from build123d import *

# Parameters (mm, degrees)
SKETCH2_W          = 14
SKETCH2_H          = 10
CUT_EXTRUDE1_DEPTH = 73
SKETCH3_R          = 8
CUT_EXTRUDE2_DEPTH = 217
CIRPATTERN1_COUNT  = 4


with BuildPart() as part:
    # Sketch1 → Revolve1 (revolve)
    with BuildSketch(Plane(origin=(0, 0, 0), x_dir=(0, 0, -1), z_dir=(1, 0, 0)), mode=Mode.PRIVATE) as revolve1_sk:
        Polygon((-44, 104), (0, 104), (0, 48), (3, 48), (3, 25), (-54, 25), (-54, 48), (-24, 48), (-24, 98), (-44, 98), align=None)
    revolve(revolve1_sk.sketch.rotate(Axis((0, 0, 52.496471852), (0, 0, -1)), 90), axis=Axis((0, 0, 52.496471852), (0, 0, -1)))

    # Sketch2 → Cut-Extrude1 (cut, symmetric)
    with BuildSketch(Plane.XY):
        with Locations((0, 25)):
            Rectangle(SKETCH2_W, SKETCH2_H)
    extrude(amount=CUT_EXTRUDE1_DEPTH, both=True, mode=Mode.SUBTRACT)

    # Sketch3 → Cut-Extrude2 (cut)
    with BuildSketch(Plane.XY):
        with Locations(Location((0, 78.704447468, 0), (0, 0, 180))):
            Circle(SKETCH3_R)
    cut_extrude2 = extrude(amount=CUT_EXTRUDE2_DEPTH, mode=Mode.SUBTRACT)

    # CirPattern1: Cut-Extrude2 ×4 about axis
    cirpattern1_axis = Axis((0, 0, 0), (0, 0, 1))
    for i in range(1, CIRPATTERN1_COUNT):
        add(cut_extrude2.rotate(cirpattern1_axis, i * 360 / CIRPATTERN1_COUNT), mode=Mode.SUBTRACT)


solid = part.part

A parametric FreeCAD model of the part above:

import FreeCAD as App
import Part
import Sketcher
from FreeCAD import Vector
Q = App.Units.Quantity


def add_polygon(sketch, points):
    """Adds a closed chain of lines whose ends are joined by coincident constraints."""
    first, n = sketch.GeometryCount, len(points)
    for a, b in zip(points, points[1:] + points[:1]):
        sketch.addGeometry(Part.LineSegment(App.Vector(*a, 0), App.Vector(*b, 0)), False)
    for i in range(n):
        sketch.addConstraint(Sketcher.Constraint("Coincident", first + i, 2, first + (i + 1) % n, 1))

doc = App.newDocument("Part")
body = doc.addObject("PartDesign::Body", "Body")

# Sketch on YZ plane
sketch1 = doc.addObject("Sketcher::SketchObject", "Sketch")
body.addObject(sketch1)
sketch1.AttachmentSupport = (doc.YZ_Plane, [""])
sketch1.MapMode = "FlatFace"
add_polygon(sketch1, [(104, 0), (104, 44), (98, 44), (98, 24), (48, 24), (48, 54), (25, 54), (25, -3), (48, -3), (48, 0)])  # lines 0-9
sketch1.addConstraint([
    Sketcher.Constraint("Vertical", 0),
    Sketcher.Constraint("Horizontal", 1),
    Sketcher.Constraint("Vertical", 2),
    Sketcher.Constraint("Horizontal", 3),
    Sketcher.Constraint("Vertical", 4),
    Sketcher.Constraint("Horizontal", 5),
    Sketcher.Constraint("Vertical", 6),
    Sketcher.Constraint("Horizontal", 7),
    Sketcher.Constraint("Vertical", 8),
    Sketcher.Constraint("Horizontal", 9),
    Sketcher.Constraint("PointOnObject", 8, 2, -1),
    Sketcher.Constraint("Vertical", 4, 2, 7, 2),
    Sketcher.Constraint("DistanceX", 1, 2, 1, 1, Q("6 mm")),
    Sketcher.Constraint("DistanceX", 3, 2, 3, 1, Q("50 mm")),
    Sketcher.Constraint("DistanceX", 5, 2, 5, 1, Q("23 mm")),
    Sketcher.Constraint("DistanceY", 0, 1, 0, 2, Q("44 mm")),
    Sketcher.Constraint("DistanceY", 2, 2, 2, 1, Q("20 mm")),
    Sketcher.Constraint("DistanceY", 4, 1, 4, 2, Q("30 mm")),
    Sketcher.Constraint("DistanceY", 6, 2, 6, 1, Q("57 mm")),
    Sketcher.Constraint("DistanceX", -1, 1, 0, 2, Q("104 mm")),
])
revolution = doc.addObject("PartDesign::Revolution", "Revolution")
body.addObject(revolution)
revolution.Profile = sketch1
revolution.ReferenceAxis = (sketch1, ["V_Axis"])
revolution.Angle = 360

# Sketch on XY plane
sketch2 = doc.addObject("Sketcher::SketchObject", "Sketch001")
body.addObject(sketch2)
sketch2.AttachmentSupport = (doc.XY_Plane, [""])
sketch2.MapMode = "FlatFace"
add_polygon(sketch2, [(-7, 30), (-7, 20), (7, 20), (7, 30)])  # lines 0-3
sketch2.addConstraint([
    Sketcher.Constraint("Vertical", 0),
    Sketcher.Constraint("Horizontal", 1),
    Sketcher.Constraint("Vertical", 2),
    Sketcher.Constraint("Horizontal", 3),
    Sketcher.Constraint("DistanceX", 1, 1, 1, 2, Q("14 mm")),
    Sketcher.Constraint("DistanceY", 0, 2, 0, 1, Q("10 mm")),
    Sketcher.Constraint("DistanceX", 0, 2, -1, 1, Q("7 mm")),
    Sketcher.Constraint("DistanceY", -1, 1, 0, 2, Q("20 mm")),
])
pocket1 = doc.addObject("PartDesign::Pocket", "Pocket")
body.addObject(pocket1)
pocket1.Profile = sketch2
pocket1.Length = 146
pocket1.Midplane = True

# Sketch on XY plane
sketch3 = doc.addObject("Sketcher::SketchObject", "Sketch002")
body.addObject(sketch3)
sketch3.AttachmentSupport = (doc.XY_Plane, [""])
sketch3.MapMode = "FlatFace"
sketch3.addGeometry(Part.Circle(Vector(0, 79, 0), Vector(0, 0, 1), 8), False)
sketch3.addConstraint([
    Sketcher.Constraint("PointOnObject", 0, 3, -2),
    Sketcher.Constraint("Diameter", 0, Q("16 mm")),
    Sketcher.Constraint("DistanceY", -1, 1, 0, 3, Q("78.704447 mm")),
])
pocket2 = doc.addObject("PartDesign::Pocket", "Pocket001")
body.addObject(pocket2)
pocket2.Profile = sketch3
pocket2.Length = 217
pocket2.Reversed = True
doc.recompute()

polarpattern = doc.addObject("PartDesign::PolarPattern", "PolarPattern")
body.addObject(polarpattern)
polarpattern.Originals = [pocket2]
polarpattern.Axis = (doc.Z_Axis, [""])
polarpattern.Angle = 360
polarpattern.Occurrences = 4
body.Tip = polarpattern

doc.recompute()
